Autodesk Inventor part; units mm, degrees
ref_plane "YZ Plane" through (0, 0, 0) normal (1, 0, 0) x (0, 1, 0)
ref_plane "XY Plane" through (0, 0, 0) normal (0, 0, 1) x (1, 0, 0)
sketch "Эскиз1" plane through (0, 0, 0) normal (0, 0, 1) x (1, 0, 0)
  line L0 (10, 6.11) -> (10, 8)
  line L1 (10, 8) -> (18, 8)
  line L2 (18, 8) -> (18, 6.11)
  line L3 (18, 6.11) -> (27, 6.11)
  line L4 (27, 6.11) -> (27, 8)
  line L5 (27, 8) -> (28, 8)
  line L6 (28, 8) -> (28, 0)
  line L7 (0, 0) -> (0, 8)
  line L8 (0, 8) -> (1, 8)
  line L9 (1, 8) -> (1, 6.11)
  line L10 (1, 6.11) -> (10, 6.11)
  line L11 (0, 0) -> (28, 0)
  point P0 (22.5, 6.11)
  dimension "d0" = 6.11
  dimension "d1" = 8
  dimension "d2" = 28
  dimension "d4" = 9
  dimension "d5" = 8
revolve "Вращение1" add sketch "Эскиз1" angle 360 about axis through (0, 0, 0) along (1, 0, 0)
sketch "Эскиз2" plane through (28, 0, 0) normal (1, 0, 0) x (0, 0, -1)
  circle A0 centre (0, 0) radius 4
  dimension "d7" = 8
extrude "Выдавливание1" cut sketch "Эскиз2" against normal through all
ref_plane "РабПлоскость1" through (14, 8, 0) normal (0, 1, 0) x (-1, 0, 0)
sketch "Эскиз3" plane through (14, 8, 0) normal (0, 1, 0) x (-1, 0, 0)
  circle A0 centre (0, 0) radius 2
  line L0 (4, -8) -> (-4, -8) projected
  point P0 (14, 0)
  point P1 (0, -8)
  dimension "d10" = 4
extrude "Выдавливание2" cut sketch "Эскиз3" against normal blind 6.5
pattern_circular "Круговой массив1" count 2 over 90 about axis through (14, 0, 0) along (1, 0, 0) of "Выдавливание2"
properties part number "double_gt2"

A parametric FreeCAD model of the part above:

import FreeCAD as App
import Part
import Sketcher

doc = App.newDocument("Part")
body = doc.addObject("PartDesign::Body", "Body")

sketch1 = body.newObject("Sketcher::SketchObject", "Sketch")
sketch1.AttachmentSupport = (doc.getObject("XY_Plane"), [""])
sketch1.MapMode = "FlatFace"
sketch1.addGeometry([
    Part.LineSegment(App.Vector(10, 8, 0), App.Vector(10, 6.1, 0)),
    Part.LineSegment(App.Vector(10, 6.1, 0), App.Vector(1, 6.1, 0)),
    Part.LineSegment(App.Vector(1, 6.1, 0), App.Vector(1, 8, 0)),
    Part.LineSegment(App.Vector(1, 8, 0), App.Vector(0, 8, 0)),
    Part.LineSegment(App.Vector(0, 8, 0), App.Vector(0, 0, 0)),
    Part.LineSegment(App.Vector(0, 0, 0), App.Vector(28, 0, 0)),
    Part.LineSegment(App.Vector(28, 0, 0), App.Vector(28, 8, 0)),
    Part.LineSegment(App.Vector(28, 8, 0), App.Vector(27, 8, 0)),
    Part.LineSegment(App.Vector(27, 8, 0), App.Vector(27, 6.1, 0)),
    Part.LineSegment(App.Vector(27, 6.1, 0), App.Vector(18, 6.1, 0)),
    Part.LineSegment(App.Vector(18, 6.1, 0), App.Vector(18, 8, 0)),
    Part.LineSegment(App.Vector(18, 8, 0), App.Vector(10, 8, 0)),
], False)
sketch1.addConstraint([
    Sketcher.Constraint("Coincident", 0, 2, 1, 1),
    Sketcher.Constraint("Coincident", 1, 2, 2, 1),
    Sketcher.Constraint("Coincident", 2, 2, 3, 1),
    Sketcher.Constraint("Coincident", 3, 2, 4, 1),
    Sketcher.Constraint("Coincident", 4, 2, 5, 1),
    Sketcher.Constraint("Coincident", 5, 2, 6, 1),
    Sketcher.Constraint("Coincident", 6, 2, 7, 1),
    Sketcher.Constraint("Coincident", 7, 2, 8, 1),
    Sketcher.Constraint("Coincident", 8, 2, 9, 1),
    Sketcher.Constraint("Coincident", 9, 2, 10, 1),
    Sketcher.Constraint("Coincident", 10, 2, 11, 1),
    Sketcher.Constraint("Coincident", 11, 2, 0, 1),
    Sketcher.Constraint("Vertical", 0),
    Sketcher.Constraint("Horizontal", 1),
    Sketcher.Constraint("Vertical", 2),
    Sketcher.Constraint("Horizontal", 3),
    Sketcher.Constraint("Vertical", 4),
    Sketcher.Constraint("Horizontal", 5),
    Sketcher.Constraint("Vertical", 6),
    Sketcher.Constraint("Horizontal", 7),
    Sketcher.Constraint("Vertical", 8),
    Sketcher.Constraint("Horizontal", 9),
    Sketcher.Constraint("Vertical", 10),
    Sketcher.Constraint("Horizontal", 11),
    Sketcher.Constraint("Coincident", 4, 2, -1, 1),
    Sketcher.Constraint("Horizontal", 3, 2, 6, 2),
    Sketcher.Constraint("Horizontal", 1, 2, 8, 2),
    Sketcher.Constraint("Horizontal", 7, 2, 10, 2),
    Sketcher.Constraint("Equal", 3, 7),
    Sketcher.Constraint("Equal", 1, 9),
    Sketcher.Constraint("Equal", 11, 4),
    Sketcher.Constraint("DistanceX", 1, 2, 1, 1, 9.0),
    Sketcher.Constraint("DistanceX", 5, 1, 5, 2, 28.0),
    Sketcher.Constraint("DistanceX", 11, 2, 11, 1, 8.0),
    Sketcher.Constraint("DistanceY", -1, 1, 0, 2, 6.11),
])
revolution = body.newObject("PartDesign::Revolution", "Revolution")
revolution.Profile = sketch1
revolution.ReferenceAxis = (sketch1, ["H_Axis"])
revolution.Angle = 360

sketch2 = body.newObject("Sketcher::SketchObject", "Sketch001")
sketch2.AttachmentSupport = (doc.getObject("YZ_Plane"), [""])
sketch2.MapMode = "FlatFace"
sketch2.AttachmentOffset = App.Placement(App.Vector(0, 0, 28), App.Rotation())
sketch2.addGeometry(Part.Circle(App.Vector(0, 0, 0), App.Vector(0, 0, 1), 4), False)
sketch2.addConstraint([
    Sketcher.Constraint("Coincident", 0, 3, -1, 1),
    Sketcher.Constraint("Diameter", 0, 8.0),
])
pocket1 = body.newObject("PartDesign::Pocket", "Pocket")
pocket1.Profile = sketch2
pocket1.Type = "ThroughAll"

sketch3 = body.newObject("Sketcher::SketchObject", "Sketch002")
sketch3.AttachmentSupport = (doc.getObject("XZ_Plane"), [""])
sketch3.MapMode = "FlatFace"
sketch3.AttachmentOffset = App.Placement(App.Vector(0, 0, -8), App.Rotation())
sketch3.addGeometry(Part.Circle(App.Vector(14, 0, 0), App.Vector(0, 0, 1), 2), False)
sketch3.addConstraint([
    Sketcher.Constraint("PointOnObject", 0, 3, -1),
    Sketcher.Constraint("Diameter", 0, 4.0),
    Sketcher.Constraint("DistanceX", -1, 1, 0, 3, 14.0),
])
pocket2 = body.newObject("PartDesign::Pocket", "Pocket001")
pocket2.Profile = sketch3
pocket2.Length = 6.5
pocket2.Reversed = True
doc.recompute()

polarpattern = body.newObject("PartDesign::PolarPattern", "PolarPattern")
polarpattern.Originals = [pocket2]
polarpattern.Axis = (doc.getObject("X_Axis"), [""])
polarpattern.Angle = 90
polarpattern.Occurrences = 2
body.Tip = polarpattern

doc.recompute()
